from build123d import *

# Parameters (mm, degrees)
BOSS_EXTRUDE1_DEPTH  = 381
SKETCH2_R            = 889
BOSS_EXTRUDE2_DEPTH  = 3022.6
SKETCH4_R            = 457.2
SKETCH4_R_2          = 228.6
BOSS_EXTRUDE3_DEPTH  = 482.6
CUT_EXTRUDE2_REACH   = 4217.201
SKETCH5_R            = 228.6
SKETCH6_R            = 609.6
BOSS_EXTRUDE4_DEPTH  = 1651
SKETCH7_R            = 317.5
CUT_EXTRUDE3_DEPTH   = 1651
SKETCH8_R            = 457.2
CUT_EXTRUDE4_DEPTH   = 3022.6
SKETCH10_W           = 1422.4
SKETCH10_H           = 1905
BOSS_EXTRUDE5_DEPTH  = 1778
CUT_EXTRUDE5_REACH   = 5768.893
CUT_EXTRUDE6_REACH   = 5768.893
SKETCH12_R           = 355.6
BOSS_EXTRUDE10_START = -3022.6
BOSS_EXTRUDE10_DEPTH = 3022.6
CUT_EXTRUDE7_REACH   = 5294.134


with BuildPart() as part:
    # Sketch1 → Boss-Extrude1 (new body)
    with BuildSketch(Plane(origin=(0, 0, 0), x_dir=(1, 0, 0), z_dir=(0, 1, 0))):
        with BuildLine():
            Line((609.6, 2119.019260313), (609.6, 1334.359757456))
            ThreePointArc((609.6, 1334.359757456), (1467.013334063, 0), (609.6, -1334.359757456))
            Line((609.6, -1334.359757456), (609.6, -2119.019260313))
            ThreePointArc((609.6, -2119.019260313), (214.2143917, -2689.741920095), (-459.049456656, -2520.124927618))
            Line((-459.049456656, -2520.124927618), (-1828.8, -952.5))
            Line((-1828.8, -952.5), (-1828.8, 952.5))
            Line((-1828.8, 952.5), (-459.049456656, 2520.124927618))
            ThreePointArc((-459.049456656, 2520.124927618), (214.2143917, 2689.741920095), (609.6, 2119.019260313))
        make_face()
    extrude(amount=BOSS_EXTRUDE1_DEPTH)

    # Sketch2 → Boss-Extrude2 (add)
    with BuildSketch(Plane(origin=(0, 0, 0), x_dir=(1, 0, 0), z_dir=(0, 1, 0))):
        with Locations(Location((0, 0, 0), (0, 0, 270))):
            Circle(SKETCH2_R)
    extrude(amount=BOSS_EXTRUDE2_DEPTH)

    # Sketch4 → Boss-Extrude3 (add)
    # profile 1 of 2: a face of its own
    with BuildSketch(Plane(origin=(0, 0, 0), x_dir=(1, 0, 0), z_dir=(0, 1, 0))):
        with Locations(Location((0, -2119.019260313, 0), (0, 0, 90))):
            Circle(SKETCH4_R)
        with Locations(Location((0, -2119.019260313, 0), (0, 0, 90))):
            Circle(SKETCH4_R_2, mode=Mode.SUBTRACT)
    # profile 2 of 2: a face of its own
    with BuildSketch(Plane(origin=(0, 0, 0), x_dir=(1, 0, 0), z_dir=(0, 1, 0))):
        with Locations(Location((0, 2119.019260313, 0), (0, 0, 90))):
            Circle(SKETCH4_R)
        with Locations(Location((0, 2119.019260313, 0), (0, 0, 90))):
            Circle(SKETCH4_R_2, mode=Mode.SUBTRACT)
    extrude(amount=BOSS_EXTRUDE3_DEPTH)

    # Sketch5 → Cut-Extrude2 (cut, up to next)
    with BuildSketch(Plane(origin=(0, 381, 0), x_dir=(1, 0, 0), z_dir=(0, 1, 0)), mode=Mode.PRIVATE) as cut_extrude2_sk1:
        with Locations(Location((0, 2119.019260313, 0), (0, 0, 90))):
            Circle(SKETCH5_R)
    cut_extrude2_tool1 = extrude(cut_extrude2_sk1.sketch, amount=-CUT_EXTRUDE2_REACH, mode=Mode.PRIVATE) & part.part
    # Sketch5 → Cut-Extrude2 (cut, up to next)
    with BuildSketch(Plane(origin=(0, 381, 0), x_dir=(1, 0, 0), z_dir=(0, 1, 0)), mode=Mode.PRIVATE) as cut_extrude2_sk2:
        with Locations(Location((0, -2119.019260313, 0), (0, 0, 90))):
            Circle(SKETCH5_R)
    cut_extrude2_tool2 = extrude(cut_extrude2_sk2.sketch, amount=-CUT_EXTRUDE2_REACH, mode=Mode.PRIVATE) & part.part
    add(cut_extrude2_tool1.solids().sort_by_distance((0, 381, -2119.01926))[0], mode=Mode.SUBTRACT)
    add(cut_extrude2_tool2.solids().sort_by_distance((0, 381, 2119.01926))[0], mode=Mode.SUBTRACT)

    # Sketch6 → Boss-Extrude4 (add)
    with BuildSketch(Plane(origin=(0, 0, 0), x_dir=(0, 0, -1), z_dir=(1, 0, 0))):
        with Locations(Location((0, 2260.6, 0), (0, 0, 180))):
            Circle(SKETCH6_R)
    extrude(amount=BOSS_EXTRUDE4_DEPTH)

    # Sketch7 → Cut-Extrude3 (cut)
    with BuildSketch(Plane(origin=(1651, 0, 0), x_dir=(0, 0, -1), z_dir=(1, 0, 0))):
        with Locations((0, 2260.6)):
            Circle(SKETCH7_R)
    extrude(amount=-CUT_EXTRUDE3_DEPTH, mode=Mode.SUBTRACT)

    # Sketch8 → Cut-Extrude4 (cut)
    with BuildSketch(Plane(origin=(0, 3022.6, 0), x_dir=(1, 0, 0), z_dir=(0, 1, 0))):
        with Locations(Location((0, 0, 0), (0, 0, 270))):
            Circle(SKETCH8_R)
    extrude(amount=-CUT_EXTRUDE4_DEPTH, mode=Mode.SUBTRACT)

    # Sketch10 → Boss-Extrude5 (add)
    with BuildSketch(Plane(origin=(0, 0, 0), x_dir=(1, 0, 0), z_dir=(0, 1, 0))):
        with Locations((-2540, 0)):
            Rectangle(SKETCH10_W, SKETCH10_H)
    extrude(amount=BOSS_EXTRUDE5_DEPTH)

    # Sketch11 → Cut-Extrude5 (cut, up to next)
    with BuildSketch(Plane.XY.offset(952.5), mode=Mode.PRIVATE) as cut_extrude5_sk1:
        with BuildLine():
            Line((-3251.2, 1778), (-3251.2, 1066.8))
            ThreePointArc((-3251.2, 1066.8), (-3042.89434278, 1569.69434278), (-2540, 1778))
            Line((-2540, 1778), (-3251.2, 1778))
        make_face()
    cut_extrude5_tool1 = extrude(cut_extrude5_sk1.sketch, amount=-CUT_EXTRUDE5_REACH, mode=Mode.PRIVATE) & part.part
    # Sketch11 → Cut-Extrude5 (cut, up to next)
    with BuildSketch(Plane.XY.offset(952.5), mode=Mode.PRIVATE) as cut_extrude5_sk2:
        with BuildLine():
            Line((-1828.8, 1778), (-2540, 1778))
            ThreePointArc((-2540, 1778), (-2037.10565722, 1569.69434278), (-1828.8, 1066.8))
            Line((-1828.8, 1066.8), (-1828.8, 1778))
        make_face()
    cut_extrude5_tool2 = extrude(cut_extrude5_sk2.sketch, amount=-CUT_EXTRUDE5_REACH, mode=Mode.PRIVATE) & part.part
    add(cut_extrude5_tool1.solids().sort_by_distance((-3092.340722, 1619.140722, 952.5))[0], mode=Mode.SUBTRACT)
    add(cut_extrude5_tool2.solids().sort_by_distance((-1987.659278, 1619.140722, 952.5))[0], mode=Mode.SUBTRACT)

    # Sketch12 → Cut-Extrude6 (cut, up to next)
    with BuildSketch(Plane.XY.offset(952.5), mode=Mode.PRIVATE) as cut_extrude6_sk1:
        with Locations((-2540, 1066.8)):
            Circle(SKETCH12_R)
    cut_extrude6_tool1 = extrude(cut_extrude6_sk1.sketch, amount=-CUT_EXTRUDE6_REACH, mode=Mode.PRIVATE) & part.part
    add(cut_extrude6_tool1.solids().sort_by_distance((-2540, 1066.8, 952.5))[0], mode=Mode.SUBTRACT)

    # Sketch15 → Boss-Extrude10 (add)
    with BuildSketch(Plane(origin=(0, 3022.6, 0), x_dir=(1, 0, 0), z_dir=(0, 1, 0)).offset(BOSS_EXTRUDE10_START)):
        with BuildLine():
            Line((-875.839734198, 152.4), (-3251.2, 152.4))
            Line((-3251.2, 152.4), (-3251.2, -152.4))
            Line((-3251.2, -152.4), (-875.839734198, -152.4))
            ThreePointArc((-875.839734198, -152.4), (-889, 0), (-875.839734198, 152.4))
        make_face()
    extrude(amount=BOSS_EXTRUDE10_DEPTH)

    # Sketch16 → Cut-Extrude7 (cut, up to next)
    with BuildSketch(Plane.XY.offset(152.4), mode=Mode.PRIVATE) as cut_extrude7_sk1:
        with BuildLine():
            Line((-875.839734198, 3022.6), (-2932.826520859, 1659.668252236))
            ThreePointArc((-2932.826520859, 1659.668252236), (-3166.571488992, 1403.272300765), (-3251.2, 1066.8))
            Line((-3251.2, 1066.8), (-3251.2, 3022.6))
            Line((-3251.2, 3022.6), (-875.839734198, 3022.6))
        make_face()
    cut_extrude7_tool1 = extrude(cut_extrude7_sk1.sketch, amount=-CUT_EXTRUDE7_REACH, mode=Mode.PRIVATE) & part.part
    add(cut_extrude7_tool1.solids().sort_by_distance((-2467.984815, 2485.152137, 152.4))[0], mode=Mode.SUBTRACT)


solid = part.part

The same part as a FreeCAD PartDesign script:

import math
import FreeCAD as App
import Part
import Sketcher
Q = App.Units.Quantity

doc = App.newDocument("Part")
params = doc.addObject("Spreadsheet::Sheet", "Params")
for row, (alias, value) in enumerate([
    ("sketch1_radius", "24 in"),
    ("sketch1_height", "75 in"),
    ("pad1_length", "15 in"),
    ("sketch2_diameter", "70 in"),
    ("pad2_length", "119 in"),
    ("sketch3_diameter", "36 in"),
    ("sketch3_diameter2", "18 in"),
    ("pad3_length", "19 in"),
    ("sketch4_diameter", "18 in"),
    ("sketch5_diameter", "18 in"),
    ("sketch6_diameter", "48 in"),
    ("pad4_length", "65 in"),
    ("sketch7_diameter", "25 in"),
    ("pocket3_length", "65 in"),
    ("sketch8_diameter", "36 in"),
    ("pocket4_length", "119 in"),
    ("sketch9_width", "56 in"),
    ("sketch9_height", "75 in"),
    ("pad5_length", "70 in"),
    ("sketch10_radius", "28 in"),
    ("sketch11_radius", "28 in"),
    ("sketch12_diameter", "28 in"),
    ("sketch13_radius", "35 in"),
    ("sketch13_height", "12 in"),
    ("pad6_length", "119 in"),
    ("sketch14_radius", "28 in"),
    ("sketch14_height", "77 in"),
], start=1):
    params.set(f"A{row}", alias)
    params.set(f"B{row}", "=" + value)
    params.setAlias(f"B{row}", alias)

body = doc.addObject("PartDesign::Body", "Body")

# Sketch on XZ plane
sketch1 = body.newObject("Sketcher::SketchObject", "Sketch")
sketch1.AttachmentSupport = (doc.getObject("XZ_Plane"), [""])
sketch1.MapMode = "FlatFace"
sketch1.addGeometry(Part.LineSegment(App.Vector(610, -1334, 0), App.Vector(610, -2119, 0)), False)
sketch1.addGeometry(Part.ArcOfCircle(Part.Circle(App.Vector(0, -2119, 0), App.Vector(0, 0, 1), 610), math.radians(-139), math.radians(0)), False)
sketch1.addGeometry(Part.LineSegment(App.Vector(-459, -2520, 0), App.Vector(-1829, -952, 0)), False)
sketch1.addGeometry(Part.LineSegment(App.Vector(-1829, -952, 0), App.Vector(-1829, 952, 0)), False)
sketch1.addGeometry(Part.LineSegment(App.Vector(-1829, 952, 0), App.Vector(-459, 2520, 0)), False)
sketch1.addGeometry(Part.ArcOfCircle(Part.Circle(App.Vector(0, 2119, 0), App.Vector(0, 0, 1), 610), math.radians(0), math.radians(139)), False)
sketch1.addGeometry(Part.LineSegment(App.Vector(610, 2119, 0), App.Vector(610, 1334, 0)), False)
sketch1.addGeometry(Part.ArcOfCircle(Part.Circle(App.Vector(0, 0, 0), App.Vector(0, 0, 1), 1467), math.radians(-65), math.radians(65)), False)
sketch1.addConstraint(Sketcher.Constraint("Tangent", 0, 2, 1, 2))
sketch1.addConstraint(Sketcher.Constraint("Tangent", 1, 1, 2, 1))
sketch1.addConstraint(Sketcher.Constraint("Coincident", 2, 2, 3, 1))
sketch1.addConstraint(Sketcher.Constraint("Coincident", 3, 2, 4, 1))
sketch1.addConstraint(Sketcher.Constraint("Tangent", 4, 2, 5, 2))
sketch1.addConstraint(Sketcher.Constraint("Tangent", 5, 1, 6, 1))
sketch1.addConstraint(Sketcher.Constraint("Coincident", 6, 2, 7, 2))
sketch1.addConstraint(Sketcher.Constraint("Coincident", 7, 1, 0, 1))
sketch1.addConstraint(Sketcher.Constraint("Vertical", 0))
sketch1.addConstraint(Sketcher.Constraint("Vertical", 3))
sketch1.addConstraint(Sketcher.Constraint("Vertical", 6))
sketch1.addConstraint(Sketcher.Constraint("Coincident", 7, 3, -1, 1))
sketch1.addConstraint(Sketcher.Constraint("Equal", 1, 5))
sketch1.addConstraint(Sketcher.Constraint("Symmetric", 1, 3, 5, 3, -1, 1))
sketch1.addConstraint(Sketcher.Constraint("PointOnObject", 1, 3, -2))
sketch1.addConstraint(Sketcher.Constraint("Equal", 2, 4))
sketch1.addConstraint(Sketcher.Constraint("Radius", 1, Q("24 in")))
sketch1.addConstraint(Sketcher.Constraint("DistanceY", 3, 1, 3, 2, Q("75 in")))
sketch1.addConstraint(Sketcher.Constraint("DistanceX", 2, 2, -1, 1, Q("72 in")))
sketch1.addConstraint(Sketcher.Constraint("Radius", 7, Q("1467.013334 mm")))
sketch1.addConstraint(Sketcher.Constraint("DistanceY", 0, 2, 0, 1, Q("784.659503 mm")))
sketch1.setExpression("Constraints[16]", "Params.sketch1_radius")
sketch1.setExpression("Constraints[17]", "Params.sketch1_height")
pad1 = body.newObject("PartDesign::Pad", "Pad")
pad1.Profile = sketch1
pad1.setExpression("Length", "Params.pad1_length")
pad1.Reversed = True

# Sketch on XZ plane
sketch2 = body.newObject("Sketcher::SketchObject", "Sketch001")
sketch2.AttachmentSupport = (doc.getObject("XZ_Plane"), [""])
sketch2.MapMode = "FlatFace"
sketch2.addGeometry(Part.Circle(App.Vector(0, 0, 0), App.Vector(0, 0, 1), 889), False)
sketch2.addConstraint(Sketcher.Constraint("Coincident", 0, 3, -1, 1))
sketch2.addConstraint(Sketcher.Constraint("Diameter", 0, Q("70 in")))
sketch2.setExpression("Constraints[1]", "Params.sketch2_diameter")
pad2 = body.newObject("PartDesign::Pad", "Pad001")
pad2.Profile = sketch2
pad2.setExpression("Length", "Params.pad2_length")
pad2.Reversed = True

# Sketch on XZ plane
sketch3 = body.newObject("Sketcher::SketchObject", "Sketch002")
sketch3.AttachmentSupport = (doc.getObject("XZ_Plane"), [""])
sketch3.MapMode = "FlatFace"
sketch3.addGeometry(Part.Circle(App.Vector(0, 2119, 0), App.Vector(0, 0, 1), 457), False)
sketch3.addGeometry(Part.Circle(App.Vector(0, 2119, 0), App.Vector(0, 0, 1), 229), False)
sketch3.addGeometry(Part.Circle(App.Vector(0, -2119, 0), App.Vector(0, 0, 1), 457), False)
sketch3.addGeometry(Part.Circle(App.Vector(0, -2119, 0), App.Vector(0, 0, 1), 229), False)
sketch3.addConstraint(Sketcher.Constraint("Coincident", 1, 3, 0, 3))
sketch3.addConstraint(Sketcher.Constraint("Coincident", 3, 3, 2, 3))
sketch3.addConstraint(Sketcher.Constraint("Equal", 0, 2))
sketch3.addConstraint(Sketcher.Constraint("Equal", 1, 3))
sketch3.addConstraint(Sketcher.Constraint("Symmetric", 0, 3, 2, 3, -1, 1))
sketch3.addConstraint(Sketcher.Constraint("PointOnObject", 0, 3, -2))
sketch3.addConstraint(Sketcher.Constraint("Diameter", 0, Q("36 in")))
sketch3.addConstraint(Sketcher.Constraint("Diameter", 1, Q("18 in")))
sketch3.addConstraint(Sketcher.Constraint("DistanceY", -1, 1, 0, 3, Q("2119.01926 mm")))
sketch3.setExpression("Constraints[6]", "Params.sketch3_diameter")
sketch3.setExpression("Constraints[7]", "Params.sketch3_diameter2")
pad3 = body.newObject("PartDesign::Pad", "Pad002")
pad3.Profile = sketch3
pad3.setExpression("Length", "Params.pad3_length")
pad3.Reversed = True

# Sketch on XZ plane
sketch4 = body.newObject("Sketcher::SketchObject", "Sketch003")
sketch4.AttachmentSupport = (doc.getObject("XZ_Plane"), [""])
sketch4.MapMode = "FlatFace"
sketch4.AttachmentOffset = App.Placement(App.Vector(0, 0, -15 * 25.4), App.Rotation())
sketch4.addGeometry(Part.Circle(App.Vector(0, -2119, 0), App.Vector(0, 0, 1), 229), False)
sketch4.addConstraint(Sketcher.Constraint("PointOnObject", 0, 3, -2))
sketch4.addConstraint(Sketcher.Constraint("Diameter", 0, Q("18 in")))
sketch4.addConstraint(Sketcher.Constraint("DistanceY", 0, 3, -1, 1, Q("2119.01926 mm")))
sketch4.setExpression("Constraints[1]", "Params.sketch4_diameter")
pocket1 = body.newObject("PartDesign::Pocket", "Pocket")
pocket1.Profile = sketch4
pocket1.Type = "UpToFirst"
pocket1.Reversed = True

# Sketch on XZ plane
sketch5 = body.newObject("Sketcher::SketchObject", "Sketch004")
sketch5.AttachmentSupport = (doc.getObject("XZ_Plane"), [""])
sketch5.MapMode = "FlatFace"
sketch5.AttachmentOffset = App.Placement(App.Vector(0, 0, -15 * 25.4), App.Rotation())
sketch5.addGeometry(Part.Circle(App.Vector(0, 2119, 0), App.Vector(0, 0, 1), 229), False)
sketch5.addConstraint(Sketcher.Constraint("PointOnObject", 0, 3, -2))
sketch5.addConstraint(Sketcher.Constraint("Diameter", 0, Q("18 in")))
sketch5.addConstraint(Sketcher.Constraint("DistanceY", -1, 1, 0, 3, Q("2119.01926 mm")))
sketch5.setExpression("Constraints[1]", "Params.sketch5_diameter")
pocket2 = body.newObject("PartDesign::Pocket", "Pocket001")
pocket2.Profile = sketch5
pocket2.Type = "UpToFirst"
pocket2.Reversed = True

# Sketch on YZ plane
sketch6 = body.newObject("Sketcher::SketchObject", "Sketch005")
sketch6.AttachmentSupport = (doc.getObject("YZ_Plane"), [""])
sketch6.MapMode = "FlatFace"
sketch6.addGeometry(Part.Circle(App.Vector(2261, 0, 0), App.Vector(0, 0, 1), 610), False)
sketch6.addConstraint(Sketcher.Constraint("PointOnObject", 0, 3, -1))
sketch6.addConstraint(Sketcher.Constraint("Diameter", 0, Q("48 in")))
sketch6.addConstraint(Sketcher.Constraint("DistanceX", -1, 1, 0, 3, Q("89 in")))
sketch6.setExpression("Constraints[1]", "Params.sketch6_diameter")
pad4 = body.newObject("PartDesign::Pad", "Pad003")
pad4.Profile = sketch6
pad4.setExpression("Length", "Params.pad4_length")

# Sketch on YZ plane
sketch7 = body.newObject("Sketcher::SketchObject", "Sketch006")
sketch7.AttachmentSupport = (doc.getObject("YZ_Plane"), [""])
sketch7.MapMode = "FlatFace"
sketch7.AttachmentOffset = App.Placement(App.Vector(0, 0, 65 * 25.4), App.Rotation())
sketch7.addGeometry(Part.Circle(App.Vector(2261, 0, 0), App.Vector(0, 0, 1), 318), False)
sketch7.addConstraint(Sketcher.Constraint("PointOnObject", 0, 3, -1))
sketch7.addConstraint(Sketcher.Constraint("Diameter", 0, Q("25 in")))
sketch7.addConstraint(Sketcher.Constraint("DistanceX", -1, 1, 0, 3, Q("89 in")))
sketch7.setExpression("Constraints[1]", "Params.sketch7_diameter")
pocket3 = body.newObject("PartDesign::Pocket", "Pocket002")
pocket3.Profile = sketch7
pocket3.setExpression("Length", "Params.pocket3_length")

# Sketch on XZ plane
sketch8 = body.newObject("Sketcher::SketchObject", "Sketch007")
sketch8.AttachmentSupport = (doc.getObject("XZ_Plane"), [""])
sketch8.MapMode = "FlatFace"
sketch8.AttachmentOffset = App.Placement(App.Vector(0, 0, -119 * 25.4), App.Rotation())
sketch8.addGeometry(Part.Circle(App.Vector(0, 0, 0), App.Vector(0, 0, 1), 457), False)
sketch8.addConstraint(Sketcher.Constraint("Coincident", 0, 3, -1, 1))
sketch8.addConstraint(Sketcher.Constraint("Diameter", 0, Q("36 in")))
sketch8.setExpression("Constraints[1]", "Params.sketch8_diameter")
pocket4 = body.newObject("PartDesign::Pocket", "Pocket003")
pocket4.Profile = sketch8
pocket4.setExpression("Length", "Params.pocket4_length")
pocket4.Reversed = True

# Sketch on XZ plane
sketch9 = body.newObject("Sketcher::SketchObject", "Sketch008")
sketch9.AttachmentSupport = (doc.getObject("XZ_Plane"), [""])
sketch9.MapMode = "FlatFace"
sketch9.addGeometry(Part.LineSegment(App.Vector(-3251, -952, 0), App.Vector(-3251, 952, 0)), False)
sketch9.addGeometry(Part.LineSegment(App.Vector(-3251, 952, 0), App.Vector(-1829, 952, 0)), False)
sketch9.addGeometry(Part.LineSegment(App.Vector(-1829, 952, 0), App.Vector(-1829, -952, 0)), False)
sketch9.addGeometry(Part.LineSegment(App.Vector(-1829, -952, 0), App.Vector(-3251, -952, 0)), False)
sketch9.addConstraint(Sketcher.Constraint("Coincident", 0, 2, 1, 1))
sketch9.addConstraint(Sketcher.Constraint("Coincident", 1, 2, 2, 1))
sketch9.addConstraint(Sketcher.Constraint("Coincident", 2, 2, 3, 1))
sketch9.addConstraint(Sketcher.Constraint("Coincident", 3, 2, 0, 1))
sketch9.addConstraint(Sketcher.Constraint("Vertical", 0))
sketch9.addConstraint(Sketcher.Constraint("Horizontal", 1))
sketch9.addConstraint(Sketcher.Constraint("Vertical", 2))
sketch9.addConstraint(Sketcher.Constraint("Horizontal", 3))
sketch9.addConstraint(Sketcher.Constraint("DistanceX", 1, 1, 1, 2, Q("56 in")))
sketch9.addConstraint(Sketcher.Constraint("DistanceY", 0, 1, 0, 2, Q("75 in")))
sketch9.addConstraint(Sketcher.Constraint("DistanceX", 0, 2, -1, 1, Q("128 in")))
sketch9.addConstraint(Sketcher.Constraint("DistanceY", -1, 1, 0, 2, Q("37.5 in")))
sketch9.setExpression("Constraints[8]", "Params.sketch9_width")
sketch9.setExpression("Constraints[9]", "Params.sketch9_height")
pad5 = body.newObject("PartDesign::Pad", "Pad004")
pad5.Profile = sketch9
pad5.setExpression("Length", "Params.pad5_length")
pad5.Reversed = True

# Sketch on XY plane
sketch10 = body.newObject("Sketcher::SketchObject", "Sketch009")
sketch10.AttachmentSupport = (doc.getObject("XY_Plane"), [""])
sketch10.MapMode = "FlatFace"
sketch10.AttachmentOffset = App.Placement(App.Vector(0, 0, 37.5 * 25.4), App.Rotation())
sketch10.addGeometry(Part.LineSegment(App.Vector(-3251.2, 1778, 0), App.Vector(-3251.2, 1066.8, 0)), False)
sketch10.addGeometry(Part.ArcOfCircle(Part.Circle(App.Vector(-2540, 1066.8, 0), App.Vector(0, 0, 1), 711.2), math.radians(90), math.radians(180)), False)
sketch10.addGeometry(Part.LineSegment(App.Vector(-2540, 1778, 0), App.Vector(-3251.2, 1778, 0)), False)
sketch10.addConstraint(Sketcher.Constraint("Tangent", 0, 2, 1, 2))
sketch10.addConstraint(Sketcher.Constraint("Tangent", 1, 1, 2, 1))
sketch10.addConstraint(Sketcher.Constraint("Coincident", 2, 2, 0, 1))
sketch10.addConstraint(Sketcher.Constraint("Vertical", 0))
sketch10.addConstraint(Sketcher.Constraint("Horizontal", 2))
sketch10.addConstraint(Sketcher.Constraint("Radius", 1, Q("28 in")))
sketch10.addConstraint(Sketcher.Constraint("DistanceX", 1, 3, -1, 1, Q("100 in")))
sketch10.addConstraint(Sketcher.Constraint("DistanceY", -1, 1, 1, 3, Q("42 in")))
sketch10.setExpression("Constraints[5]", "Params.sketch10_radius")
pocket5 = body.newObject("PartDesign::Pocket", "Pocket004")
pocket5.Profile = sketch10
pocket5.Type = "UpToFirst"

# Sketch on XY plane
sketch11 = body.newObject("Sketcher::SketchObject", "Sketch010")
sketch11.AttachmentSupport = (doc.getObject("XY_Plane"), [""])
sketch11.MapMode = "FlatFace"
sketch11.AttachmentOffset = App.Placement(App.Vector(0, 0, 37.5 * 25.4), App.Rotation())
sketch11.addGeometry(Part.LineSegment(App.Vector(-1829, 1778, 0), App.Vector(-2540, 1778, 0)), False)
sketch11.addGeometry(Part.ArcOfCircle(Part.Circle(App.Vector(-2540, 1067, 0), App.Vector(0, 0, 1), 711), math.radians(0), math.radians(90)), False)
sketch11.addGeometry(Part.LineSegment(App.Vector(-1829, 1067, 0), App.Vector(-1829, 1778, 0)), False)
sketch11.addConstraint(Sketcher.Constraint("Tangent", 0, 2, 1, 2))
sketch11.addConstraint(Sketcher.Constraint("Tangent", 1, 1, 2, 1))
sketch11.addConstraint(Sketcher.Constraint("Coincident", 2, 2, 0, 1))
sketch11.addConstraint(Sketcher.Constraint("Horizontal", 0))
sketch11.addConstraint(Sketcher.Constraint("Vertical", 2))
sketch11.addConstraint(Sketcher.Constraint("Radius", 1, Q("28 in")))
sketch11.addConstraint(Sketcher.Constraint("DistanceX", 1, 3, -1, 1, Q("100 in")))
sketch11.addConstraint(Sketcher.Constraint("DistanceY", -1, 1, 1, 3, Q("42 in")))
sketch11.setExpression("Constraints[5]", "Params.sketch11_radius")
pocket6 = body.newObject("PartDesign::Pocket", "Pocket005")
pocket6.Profile = sketch11
pocket6.Type = "UpToFirst"

# Sketch on XY plane
sketch12 = body.newObject("Sketcher::SketchObject", "Sketch011")
sketch12.AttachmentSupport = (doc.getObject("XY_Plane"), [""])
sketch12.MapMode = "FlatFace"
sketch12.AttachmentOffset = App.Placement(App.Vector(0, 0, 37.5 * 25.4), App.Rotation())
sketch12.addGeometry(Part.Circle(App.Vector(-2540, 1067, 0), App.Vector(0, 0, 1), 356), False)
sketch12.addConstraint(Sketcher.Constraint("Diameter", 0, Q("28 in")))
sketch12.addConstraint(Sketcher.Constraint("DistanceX", 0, 3, -1, 1, Q("100 in")))
sketch12.addConstraint(Sketcher.Constraint("DistanceY", -1, 1, 0, 3, Q("42 in")))
sketch12.setExpression("Constraints[0]", "Params.sketch12_diameter")
pocket7 = body.newObject("PartDesign::Pocket", "Pocket006")
pocket7.Profile = sketch12
pocket7.Type = "UpToFirst"

# Sketch on XZ plane
sketch13 = body.newObject("Sketcher::SketchObject", "Sketch012")
sketch13.AttachmentSupport = (doc.getObject("XZ_Plane"), [""])
sketch13.MapMode = "FlatFace"
sketch13.addGeometry(Part.LineSegment(App.Vector(-876, -152, 0), App.Vector(-3251, -152, 0)), False)
sketch13.addGeometry(Part.LineSegment(App.Vector(-3251, -152, 0), App.Vector(-3251, 152, 0)), False)
sketch13.addGeometry(Part.LineSegment(App.Vector(-3251, 152, 0), App.Vector(-876, 152, 0)), False)
sketch13.addGeometry(Part.ArcOfCircle(Part.Circle(App.Vector(0, 0, 0), App.Vector(0, 0, 1), 889), math.radians(170.13), math.radians(189.87)), False)
sketch13.addConstraint(Sketcher.Constraint("Coincident", 0, 2, 1, 1))
sketch13.addConstraint(Sketcher.Constraint("Coincident", 1, 2, 2, 1))
sketch13.addConstraint(Sketcher.Constraint("Coincident", 2, 2, 3, 1))
sketch13.addConstraint(Sketcher.Constraint("Coincident", 3, 2, 0, 1))
sketch13.addConstraint(Sketcher.Constraint("Horizontal", 0))
sketch13.addConstraint(Sketcher.Constraint("Vertical", 1))
sketch13.addConstraint(Sketcher.Constraint("Horizontal", 2))
sketch13.addConstraint(Sketcher.Constraint("Coincident", 3, 3, -1, 1))
sketch13.addConstraint(Sketcher.Constraint("Equal", 0, 2))
sketch13.addConstraint(Sketcher.Constraint("Radius", 3, Q("35 in")))
sketch13.addConstraint(Sketcher.Constraint("DistanceY", 1, 1, 1, 2, Q("12 in")))
sketch13.addConstraint(Sketcher.Constraint("DistanceX", 0, 2, -1, 1, Q("128 in")))
sketch13.setExpression("Constraints[9]", "Params.sketch13_radius")
sketch13.setExpression("Constraints[10]", "Params.sketch13_height")
pad6 = body.newObject("PartDesign::Pad", "Pad005")
pad6.Profile = sketch13
pad6.setExpression("Length", "Params.pad6_length")
pad6.Reversed = True

# Sketch on XY plane
sketch14 = body.newObject("Sketcher::SketchObject", "Sketch013")
sketch14.AttachmentSupport = (doc.getObject("XY_Plane"), [""])
sketch14.MapMode = "FlatFace"
sketch14.AttachmentOffset = App.Placement(App.Vector(0, 0, 6 * 25.4), App.Rotation())
sketch14.addGeometry(Part.LineSegment(App.Vector(-2933, 1660, 0), App.Vector(-876, 3023, 0)), False)
sketch14.addGeometry(Part.LineSegment(App.Vector(-876, 3023, 0), App.Vector(-3251, 3023, 0)), False)
sketch14.addGeometry(Part.LineSegment(App.Vector(-3251, 3023, 0), App.Vector(-3251, 1067, 0)), False)
sketch14.addGeometry(Part.ArcOfCircle(Part.Circle(App.Vector(-2540, 1067, 0), App.Vector(0, 0, 1), 711), math.radians(124), math.radians(180)), False)
sketch14.addConstraint(Sketcher.Constraint("Coincident", 0, 2, 1, 1))
sketch14.addConstraint(Sketcher.Constraint("Coincident", 1, 2, 2, 1))
sketch14.addConstraint(Sketcher.Constraint("Tangent", 2, 2, 3, 2))
sketch14.addConstraint(Sketcher.Constraint("Coincident", 3, 1, 0, 1))
sketch14.addConstraint(Sketcher.Constraint("Horizontal", 1))
sketch14.addConstraint(Sketcher.Constraint("Vertical", 2))
sketch14.addConstraint(Sketcher.Constraint("Radius", 3, Q("28 in")))
sketch14.addConstraint(Sketcher.Constraint("DistanceY", 2, 2, 2, 1, Q("77 in")))
sketch14.addConstraint(Sketcher.Constraint("DistanceX", 3, 3, -1, 1, Q("100 in")))
sketch14.addConstraint(Sketcher.Constraint("DistanceY", -1, 1, 3, 3, Q("42 in")))
sketch14.addConstraint(Sketcher.Constraint("Distance", 0, Q("2467.544851 mm")))
sketch14.addConstraint(Sketcher.Constraint("DistanceX", 1, 2, 1, 1, Q("2375.360266 mm")))
sketch14.setExpression("Constraints[6]", "Params.sketch14_radius")
sketch14.setExpression("Constraints[7]", "Params.sketch14_height")
pocket8 = body.newObject("PartDesign::Pocket", "Pocket007")
pocket8.Profile = sketch14
pocket8.Type = "UpToFirst"

doc.recompute()
